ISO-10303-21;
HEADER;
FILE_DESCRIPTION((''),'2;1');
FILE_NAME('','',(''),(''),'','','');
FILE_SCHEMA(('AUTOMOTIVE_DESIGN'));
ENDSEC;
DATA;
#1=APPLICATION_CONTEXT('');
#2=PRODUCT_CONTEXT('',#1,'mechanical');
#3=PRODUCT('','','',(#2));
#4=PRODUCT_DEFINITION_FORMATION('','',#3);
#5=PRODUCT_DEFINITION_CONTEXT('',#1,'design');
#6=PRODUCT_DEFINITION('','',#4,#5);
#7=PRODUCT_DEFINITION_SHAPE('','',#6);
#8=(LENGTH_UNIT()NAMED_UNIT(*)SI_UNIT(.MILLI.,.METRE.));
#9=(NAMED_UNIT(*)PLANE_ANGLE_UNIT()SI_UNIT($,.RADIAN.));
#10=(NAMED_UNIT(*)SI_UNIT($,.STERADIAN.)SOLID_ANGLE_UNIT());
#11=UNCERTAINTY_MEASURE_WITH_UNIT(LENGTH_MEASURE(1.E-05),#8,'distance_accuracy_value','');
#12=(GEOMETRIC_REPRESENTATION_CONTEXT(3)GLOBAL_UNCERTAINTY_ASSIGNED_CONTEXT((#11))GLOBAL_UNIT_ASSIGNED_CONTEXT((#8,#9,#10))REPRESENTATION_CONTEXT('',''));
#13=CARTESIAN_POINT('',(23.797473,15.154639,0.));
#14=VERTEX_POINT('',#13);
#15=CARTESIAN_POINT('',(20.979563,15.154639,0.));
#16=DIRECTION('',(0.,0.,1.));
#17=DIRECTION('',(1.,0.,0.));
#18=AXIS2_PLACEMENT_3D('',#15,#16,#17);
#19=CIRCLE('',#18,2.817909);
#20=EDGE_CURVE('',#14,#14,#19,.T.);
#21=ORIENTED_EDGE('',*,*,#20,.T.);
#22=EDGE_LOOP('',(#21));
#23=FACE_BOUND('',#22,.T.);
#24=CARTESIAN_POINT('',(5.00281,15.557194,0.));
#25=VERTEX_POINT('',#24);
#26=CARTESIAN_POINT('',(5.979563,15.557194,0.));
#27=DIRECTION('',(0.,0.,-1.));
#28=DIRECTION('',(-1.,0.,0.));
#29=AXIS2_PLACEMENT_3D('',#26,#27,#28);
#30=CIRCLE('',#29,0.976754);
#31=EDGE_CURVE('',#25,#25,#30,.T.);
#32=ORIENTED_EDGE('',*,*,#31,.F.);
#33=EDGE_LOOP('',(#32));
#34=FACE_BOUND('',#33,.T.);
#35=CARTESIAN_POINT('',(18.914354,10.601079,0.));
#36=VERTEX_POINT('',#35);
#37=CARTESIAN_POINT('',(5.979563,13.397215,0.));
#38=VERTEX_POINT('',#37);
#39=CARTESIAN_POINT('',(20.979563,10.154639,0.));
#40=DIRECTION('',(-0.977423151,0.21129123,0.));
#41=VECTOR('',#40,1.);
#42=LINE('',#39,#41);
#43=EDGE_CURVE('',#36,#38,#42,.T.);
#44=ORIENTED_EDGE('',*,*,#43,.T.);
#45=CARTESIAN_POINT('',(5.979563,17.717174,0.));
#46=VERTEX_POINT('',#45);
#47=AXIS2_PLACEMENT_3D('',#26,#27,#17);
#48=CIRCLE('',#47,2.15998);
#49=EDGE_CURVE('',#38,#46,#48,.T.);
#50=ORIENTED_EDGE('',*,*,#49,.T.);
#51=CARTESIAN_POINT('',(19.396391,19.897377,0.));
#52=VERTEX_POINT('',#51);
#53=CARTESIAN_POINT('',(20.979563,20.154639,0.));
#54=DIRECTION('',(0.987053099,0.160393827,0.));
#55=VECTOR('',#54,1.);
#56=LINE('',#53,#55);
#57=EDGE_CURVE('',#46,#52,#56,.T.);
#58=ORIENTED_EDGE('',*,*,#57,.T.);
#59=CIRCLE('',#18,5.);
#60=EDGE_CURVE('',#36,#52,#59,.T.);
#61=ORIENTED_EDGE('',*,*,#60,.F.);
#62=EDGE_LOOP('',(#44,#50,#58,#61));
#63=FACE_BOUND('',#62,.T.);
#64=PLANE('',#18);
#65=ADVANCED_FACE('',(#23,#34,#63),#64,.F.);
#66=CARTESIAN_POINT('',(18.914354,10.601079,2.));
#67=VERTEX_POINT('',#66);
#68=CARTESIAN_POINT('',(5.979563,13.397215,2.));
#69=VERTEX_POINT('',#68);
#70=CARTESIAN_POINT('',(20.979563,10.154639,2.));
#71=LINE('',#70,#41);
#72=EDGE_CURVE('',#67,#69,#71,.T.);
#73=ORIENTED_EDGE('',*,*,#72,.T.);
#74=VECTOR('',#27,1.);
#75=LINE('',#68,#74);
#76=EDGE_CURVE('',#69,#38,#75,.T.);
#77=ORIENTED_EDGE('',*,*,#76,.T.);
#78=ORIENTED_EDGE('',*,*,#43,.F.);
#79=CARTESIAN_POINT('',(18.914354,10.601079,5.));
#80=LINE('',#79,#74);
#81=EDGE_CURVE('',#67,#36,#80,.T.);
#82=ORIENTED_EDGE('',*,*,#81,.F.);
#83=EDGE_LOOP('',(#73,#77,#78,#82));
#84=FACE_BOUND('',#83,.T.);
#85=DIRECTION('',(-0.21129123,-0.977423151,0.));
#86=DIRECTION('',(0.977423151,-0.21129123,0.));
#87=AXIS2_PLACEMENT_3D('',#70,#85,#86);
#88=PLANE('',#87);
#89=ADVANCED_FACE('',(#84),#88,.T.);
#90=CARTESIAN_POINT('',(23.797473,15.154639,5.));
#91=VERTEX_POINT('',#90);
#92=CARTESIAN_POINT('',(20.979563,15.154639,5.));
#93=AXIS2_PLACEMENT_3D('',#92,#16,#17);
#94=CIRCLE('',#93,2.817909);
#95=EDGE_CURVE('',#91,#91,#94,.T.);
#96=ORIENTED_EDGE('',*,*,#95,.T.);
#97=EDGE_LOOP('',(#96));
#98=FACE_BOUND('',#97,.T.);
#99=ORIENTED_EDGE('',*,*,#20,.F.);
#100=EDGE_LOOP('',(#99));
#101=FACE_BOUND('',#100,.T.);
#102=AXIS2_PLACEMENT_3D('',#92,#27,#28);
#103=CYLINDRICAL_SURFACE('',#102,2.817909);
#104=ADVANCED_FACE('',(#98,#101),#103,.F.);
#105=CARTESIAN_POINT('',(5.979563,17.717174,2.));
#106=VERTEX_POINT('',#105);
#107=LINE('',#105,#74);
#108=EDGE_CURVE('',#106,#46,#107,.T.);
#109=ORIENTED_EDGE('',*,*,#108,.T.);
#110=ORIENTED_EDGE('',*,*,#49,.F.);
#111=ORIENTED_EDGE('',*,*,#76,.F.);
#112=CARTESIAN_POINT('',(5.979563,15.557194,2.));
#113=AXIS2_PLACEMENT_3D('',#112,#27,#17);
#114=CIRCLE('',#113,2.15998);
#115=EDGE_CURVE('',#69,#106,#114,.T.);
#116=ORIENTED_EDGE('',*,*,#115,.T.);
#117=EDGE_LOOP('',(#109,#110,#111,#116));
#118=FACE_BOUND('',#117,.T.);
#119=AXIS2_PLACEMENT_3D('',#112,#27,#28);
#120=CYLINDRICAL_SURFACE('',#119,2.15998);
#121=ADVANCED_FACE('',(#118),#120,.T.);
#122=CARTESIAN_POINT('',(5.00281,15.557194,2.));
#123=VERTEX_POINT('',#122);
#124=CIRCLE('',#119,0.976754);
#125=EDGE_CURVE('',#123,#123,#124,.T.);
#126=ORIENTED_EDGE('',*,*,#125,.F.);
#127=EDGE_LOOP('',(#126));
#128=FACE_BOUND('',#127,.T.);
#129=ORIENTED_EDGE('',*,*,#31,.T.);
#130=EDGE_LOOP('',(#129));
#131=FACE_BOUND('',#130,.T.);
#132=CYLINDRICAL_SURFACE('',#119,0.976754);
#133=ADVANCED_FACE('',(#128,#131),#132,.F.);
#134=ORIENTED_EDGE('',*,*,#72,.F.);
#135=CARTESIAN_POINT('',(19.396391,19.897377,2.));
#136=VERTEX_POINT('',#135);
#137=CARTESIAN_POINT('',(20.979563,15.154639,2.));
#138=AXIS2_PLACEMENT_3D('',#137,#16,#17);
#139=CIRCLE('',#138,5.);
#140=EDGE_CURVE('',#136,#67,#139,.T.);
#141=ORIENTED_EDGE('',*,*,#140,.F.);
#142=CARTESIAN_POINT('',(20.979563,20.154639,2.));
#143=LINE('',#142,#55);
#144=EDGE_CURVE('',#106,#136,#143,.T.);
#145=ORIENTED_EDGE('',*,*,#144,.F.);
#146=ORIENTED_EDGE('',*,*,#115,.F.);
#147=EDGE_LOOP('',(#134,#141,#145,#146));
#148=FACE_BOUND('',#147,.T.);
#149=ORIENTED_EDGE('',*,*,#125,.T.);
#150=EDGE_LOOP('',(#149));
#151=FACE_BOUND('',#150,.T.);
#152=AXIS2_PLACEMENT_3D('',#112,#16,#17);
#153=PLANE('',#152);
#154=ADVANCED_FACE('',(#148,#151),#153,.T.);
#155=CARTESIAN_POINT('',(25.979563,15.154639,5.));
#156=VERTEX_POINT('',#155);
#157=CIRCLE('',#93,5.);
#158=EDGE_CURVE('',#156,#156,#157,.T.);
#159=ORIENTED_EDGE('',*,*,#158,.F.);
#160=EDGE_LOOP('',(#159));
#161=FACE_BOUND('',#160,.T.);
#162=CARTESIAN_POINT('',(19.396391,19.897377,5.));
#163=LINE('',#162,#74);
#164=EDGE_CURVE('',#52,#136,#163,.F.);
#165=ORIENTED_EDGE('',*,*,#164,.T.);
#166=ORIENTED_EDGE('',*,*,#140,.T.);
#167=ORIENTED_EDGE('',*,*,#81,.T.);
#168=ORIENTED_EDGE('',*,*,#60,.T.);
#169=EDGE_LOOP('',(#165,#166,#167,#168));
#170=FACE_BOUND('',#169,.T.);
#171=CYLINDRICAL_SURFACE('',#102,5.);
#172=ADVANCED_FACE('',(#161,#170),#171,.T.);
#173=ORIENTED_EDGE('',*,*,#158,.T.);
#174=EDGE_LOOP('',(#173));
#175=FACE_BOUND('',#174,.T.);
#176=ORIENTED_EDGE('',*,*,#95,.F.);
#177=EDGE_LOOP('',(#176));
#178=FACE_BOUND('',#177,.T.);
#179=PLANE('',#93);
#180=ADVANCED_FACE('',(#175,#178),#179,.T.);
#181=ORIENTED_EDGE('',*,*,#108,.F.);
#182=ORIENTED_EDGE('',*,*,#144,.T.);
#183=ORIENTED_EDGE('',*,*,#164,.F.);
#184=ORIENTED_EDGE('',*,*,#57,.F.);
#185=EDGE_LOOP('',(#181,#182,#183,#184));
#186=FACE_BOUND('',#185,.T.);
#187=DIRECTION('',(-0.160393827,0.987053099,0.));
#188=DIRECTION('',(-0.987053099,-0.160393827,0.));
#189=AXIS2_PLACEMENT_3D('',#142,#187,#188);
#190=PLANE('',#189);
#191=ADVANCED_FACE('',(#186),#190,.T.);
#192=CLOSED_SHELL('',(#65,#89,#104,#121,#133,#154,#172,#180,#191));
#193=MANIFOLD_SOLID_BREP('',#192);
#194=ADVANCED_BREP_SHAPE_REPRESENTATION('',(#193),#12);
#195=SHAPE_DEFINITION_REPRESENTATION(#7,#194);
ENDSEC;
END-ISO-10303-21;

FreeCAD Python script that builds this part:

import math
import FreeCAD as App
import Part
import Sketcher
from FreeCAD import Vector
Q = App.Units.Quantity

doc = App.newDocument("Part")
params = doc.addObject("Spreadsheet::Sheet", "Params")
for row, (alias, value) in enumerate([
    ("sketch1_diameter", "10 mm"),
    ("pad1_length", "5 mm"),
    ("pad2_length", "2 mm"),
], start=1):
    params.set(f"A{row}", alias)
    params.set(f"B{row}", "=" + value)
    params.setAlias(f"B{row}", alias)

body = doc.addObject("PartDesign::Body", "Body")

# Sketch on XY plane
sketch1 = body.newObject("Sketcher::SketchObject", "Sketch")
sketch1.AttachmentSupport = (doc.getObject("XY_Plane"), [""])
sketch1.MapMode = "FlatFace"
sketch1.addGeometry(Part.Circle(Vector(21, 15.2, 0), Vector(0, 0, 1), 5), False)
sketch1.addGeometry(Part.Circle(Vector(21, 15.2, 0), Vector(0, 0, 1), 2.8), False)
sketch1.addConstraint(Sketcher.Constraint("Coincident", 1, 3, 0, 3))
sketch1.addConstraint(Sketcher.Constraint("Diameter", 0, Q("10 mm")))
sketch1.addConstraint(Sketcher.Constraint("Diameter", 1, Q("5.635819 mm")))
sketch1.addConstraint(Sketcher.Constraint("DistanceY", -1, 1, 0, 3, Q("15.154639 mm")))
sketch1.addConstraint(Sketcher.Constraint("DistanceX", -1, 1, 0, 3, Q("20.979563 mm")))
sketch1.setExpression("Constraints[1]", "Params.sketch1_diameter")
pad1 = body.newObject("PartDesign::Pad", "Pad")
pad1.Profile = sketch1
pad1.setExpression("Length", "Params.pad1_length")

# Sketch on XY plane
sketch2 = body.newObject("Sketcher::SketchObject", "Sketch001")
sketch2.AttachmentSupport = (doc.getObject("XY_Plane"), [""])
sketch2.MapMode = "FlatFace"
sketch2.addGeometry(Part.LineSegment(Vector(6, 17.7, 0), Vector(21, 20.2, 0)), False)
sketch2.addGeometry(Part.LineSegment(Vector(21, 20.2, 0), Vector(17.5, 16.1, 0)), False)
sketch2.addGeometry(Part.LineSegment(Vector(17.5, 16.1, 0), Vector(17.9, 13.6, 0)), False)
sketch2.addGeometry(Part.LineSegment(Vector(17.9, 13.6, 0), Vector(20.9, 11, 0)), False)
sketch2.addGeometry(Part.LineSegment(Vector(20.9, 11, 0), Vector(21, 10.2, 0)), False)
sketch2.addGeometry(Part.LineSegment(Vector(21, 10.2, 0), Vector(6, 13.4, 0)), False)
sketch2.addGeometry(Part.ArcOfCircle(Part.Circle(Vector(6, 15.6, 0), Vector(0, 0, 1), 2.2), math.radians(90), math.radians(270)), False)
sketch2.addGeometry(Part.Circle(Vector(6, 15.6, 0), Vector(0, 0, 1), 1), False)
sketch2.addConstraint(Sketcher.Constraint("Coincident", 0, 2, 1, 1))
sketch2.addConstraint(Sketcher.Constraint("Coincident", 1, 2, 2, 1))
sketch2.addConstraint(Sketcher.Constraint("Coincident", 2, 2, 3, 1))
sketch2.addConstraint(Sketcher.Constraint("Coincident", 3, 2, 4, 1))
sketch2.addConstraint(Sketcher.Constraint("Coincident", 4, 2, 5, 1))
sketch2.addConstraint(Sketcher.Constraint("Coincident", 5, 2, 6, 2))
sketch2.addConstraint(Sketcher.Constraint("Coincident", 6, 1, 0, 1))
sketch2.addConstraint(Sketcher.Constraint("Coincident", 7, 3, 6, 3))
sketch2.addConstraint(Sketcher.Constraint("Perpendicular", 0, 2))
sketch2.addConstraint(Sketcher.Constraint("Perpendicular", 1, 3))
sketch2.addConstraint(Sketcher.Constraint("Vertical", 0, 2, 4, 2))
sketch2.addConstraint(Sketcher.Constraint("Vertical", 7, 3, 5, 2))
sketch2.addConstraint(Sketcher.Constraint("Vertical", 5, 2, 6, 1))
sketch2.addConstraint(Sketcher.Constraint("DistanceX", 6, 3, 0, 2, Q("15 mm")))
sketch2.addConstraint(Sketcher.Constraint("DistanceY", 4, 2, 0, 2, Q("10 mm")))
sketch2.addConstraint(Sketcher.Constraint("Radius", 6, Q("2.15998 mm")))
sketch2.addConstraint(Sketcher.Constraint("Diameter", 7, Q("1.953507 mm")))
sketch2.addConstraint(Sketcher.Constraint("Distance", 0, Q("15.196751 mm")))
sketch2.addConstraint(Sketcher.Constraint("Distance", 2, Q("2.567962 mm")))
sketch2.addConstraint(Sketcher.Constraint("Distance", 3, Q("3.953551 mm")))
sketch2.addConstraint(Sketcher.Constraint("Distance", 4, Q("0.854609 mm")))
sketch2.addConstraint(Sketcher.Constraint("DistanceY", -1, 1, 0, 2, Q("20.154639 mm")))
sketch2.addConstraint(Sketcher.Constraint("DistanceY", -1, 1, 2, 2, Q("13.598219 mm")))
sketch2.addConstraint(Sketcher.Constraint("DistanceX", -1, 1, 6, 3, Q("5.979563 mm")))
pad2 = body.newObject("PartDesign::Pad", "Pad001")
pad2.Profile = sketch2
pad2.setExpression("Length", "Params.pad2_length")

doc.recompute()
